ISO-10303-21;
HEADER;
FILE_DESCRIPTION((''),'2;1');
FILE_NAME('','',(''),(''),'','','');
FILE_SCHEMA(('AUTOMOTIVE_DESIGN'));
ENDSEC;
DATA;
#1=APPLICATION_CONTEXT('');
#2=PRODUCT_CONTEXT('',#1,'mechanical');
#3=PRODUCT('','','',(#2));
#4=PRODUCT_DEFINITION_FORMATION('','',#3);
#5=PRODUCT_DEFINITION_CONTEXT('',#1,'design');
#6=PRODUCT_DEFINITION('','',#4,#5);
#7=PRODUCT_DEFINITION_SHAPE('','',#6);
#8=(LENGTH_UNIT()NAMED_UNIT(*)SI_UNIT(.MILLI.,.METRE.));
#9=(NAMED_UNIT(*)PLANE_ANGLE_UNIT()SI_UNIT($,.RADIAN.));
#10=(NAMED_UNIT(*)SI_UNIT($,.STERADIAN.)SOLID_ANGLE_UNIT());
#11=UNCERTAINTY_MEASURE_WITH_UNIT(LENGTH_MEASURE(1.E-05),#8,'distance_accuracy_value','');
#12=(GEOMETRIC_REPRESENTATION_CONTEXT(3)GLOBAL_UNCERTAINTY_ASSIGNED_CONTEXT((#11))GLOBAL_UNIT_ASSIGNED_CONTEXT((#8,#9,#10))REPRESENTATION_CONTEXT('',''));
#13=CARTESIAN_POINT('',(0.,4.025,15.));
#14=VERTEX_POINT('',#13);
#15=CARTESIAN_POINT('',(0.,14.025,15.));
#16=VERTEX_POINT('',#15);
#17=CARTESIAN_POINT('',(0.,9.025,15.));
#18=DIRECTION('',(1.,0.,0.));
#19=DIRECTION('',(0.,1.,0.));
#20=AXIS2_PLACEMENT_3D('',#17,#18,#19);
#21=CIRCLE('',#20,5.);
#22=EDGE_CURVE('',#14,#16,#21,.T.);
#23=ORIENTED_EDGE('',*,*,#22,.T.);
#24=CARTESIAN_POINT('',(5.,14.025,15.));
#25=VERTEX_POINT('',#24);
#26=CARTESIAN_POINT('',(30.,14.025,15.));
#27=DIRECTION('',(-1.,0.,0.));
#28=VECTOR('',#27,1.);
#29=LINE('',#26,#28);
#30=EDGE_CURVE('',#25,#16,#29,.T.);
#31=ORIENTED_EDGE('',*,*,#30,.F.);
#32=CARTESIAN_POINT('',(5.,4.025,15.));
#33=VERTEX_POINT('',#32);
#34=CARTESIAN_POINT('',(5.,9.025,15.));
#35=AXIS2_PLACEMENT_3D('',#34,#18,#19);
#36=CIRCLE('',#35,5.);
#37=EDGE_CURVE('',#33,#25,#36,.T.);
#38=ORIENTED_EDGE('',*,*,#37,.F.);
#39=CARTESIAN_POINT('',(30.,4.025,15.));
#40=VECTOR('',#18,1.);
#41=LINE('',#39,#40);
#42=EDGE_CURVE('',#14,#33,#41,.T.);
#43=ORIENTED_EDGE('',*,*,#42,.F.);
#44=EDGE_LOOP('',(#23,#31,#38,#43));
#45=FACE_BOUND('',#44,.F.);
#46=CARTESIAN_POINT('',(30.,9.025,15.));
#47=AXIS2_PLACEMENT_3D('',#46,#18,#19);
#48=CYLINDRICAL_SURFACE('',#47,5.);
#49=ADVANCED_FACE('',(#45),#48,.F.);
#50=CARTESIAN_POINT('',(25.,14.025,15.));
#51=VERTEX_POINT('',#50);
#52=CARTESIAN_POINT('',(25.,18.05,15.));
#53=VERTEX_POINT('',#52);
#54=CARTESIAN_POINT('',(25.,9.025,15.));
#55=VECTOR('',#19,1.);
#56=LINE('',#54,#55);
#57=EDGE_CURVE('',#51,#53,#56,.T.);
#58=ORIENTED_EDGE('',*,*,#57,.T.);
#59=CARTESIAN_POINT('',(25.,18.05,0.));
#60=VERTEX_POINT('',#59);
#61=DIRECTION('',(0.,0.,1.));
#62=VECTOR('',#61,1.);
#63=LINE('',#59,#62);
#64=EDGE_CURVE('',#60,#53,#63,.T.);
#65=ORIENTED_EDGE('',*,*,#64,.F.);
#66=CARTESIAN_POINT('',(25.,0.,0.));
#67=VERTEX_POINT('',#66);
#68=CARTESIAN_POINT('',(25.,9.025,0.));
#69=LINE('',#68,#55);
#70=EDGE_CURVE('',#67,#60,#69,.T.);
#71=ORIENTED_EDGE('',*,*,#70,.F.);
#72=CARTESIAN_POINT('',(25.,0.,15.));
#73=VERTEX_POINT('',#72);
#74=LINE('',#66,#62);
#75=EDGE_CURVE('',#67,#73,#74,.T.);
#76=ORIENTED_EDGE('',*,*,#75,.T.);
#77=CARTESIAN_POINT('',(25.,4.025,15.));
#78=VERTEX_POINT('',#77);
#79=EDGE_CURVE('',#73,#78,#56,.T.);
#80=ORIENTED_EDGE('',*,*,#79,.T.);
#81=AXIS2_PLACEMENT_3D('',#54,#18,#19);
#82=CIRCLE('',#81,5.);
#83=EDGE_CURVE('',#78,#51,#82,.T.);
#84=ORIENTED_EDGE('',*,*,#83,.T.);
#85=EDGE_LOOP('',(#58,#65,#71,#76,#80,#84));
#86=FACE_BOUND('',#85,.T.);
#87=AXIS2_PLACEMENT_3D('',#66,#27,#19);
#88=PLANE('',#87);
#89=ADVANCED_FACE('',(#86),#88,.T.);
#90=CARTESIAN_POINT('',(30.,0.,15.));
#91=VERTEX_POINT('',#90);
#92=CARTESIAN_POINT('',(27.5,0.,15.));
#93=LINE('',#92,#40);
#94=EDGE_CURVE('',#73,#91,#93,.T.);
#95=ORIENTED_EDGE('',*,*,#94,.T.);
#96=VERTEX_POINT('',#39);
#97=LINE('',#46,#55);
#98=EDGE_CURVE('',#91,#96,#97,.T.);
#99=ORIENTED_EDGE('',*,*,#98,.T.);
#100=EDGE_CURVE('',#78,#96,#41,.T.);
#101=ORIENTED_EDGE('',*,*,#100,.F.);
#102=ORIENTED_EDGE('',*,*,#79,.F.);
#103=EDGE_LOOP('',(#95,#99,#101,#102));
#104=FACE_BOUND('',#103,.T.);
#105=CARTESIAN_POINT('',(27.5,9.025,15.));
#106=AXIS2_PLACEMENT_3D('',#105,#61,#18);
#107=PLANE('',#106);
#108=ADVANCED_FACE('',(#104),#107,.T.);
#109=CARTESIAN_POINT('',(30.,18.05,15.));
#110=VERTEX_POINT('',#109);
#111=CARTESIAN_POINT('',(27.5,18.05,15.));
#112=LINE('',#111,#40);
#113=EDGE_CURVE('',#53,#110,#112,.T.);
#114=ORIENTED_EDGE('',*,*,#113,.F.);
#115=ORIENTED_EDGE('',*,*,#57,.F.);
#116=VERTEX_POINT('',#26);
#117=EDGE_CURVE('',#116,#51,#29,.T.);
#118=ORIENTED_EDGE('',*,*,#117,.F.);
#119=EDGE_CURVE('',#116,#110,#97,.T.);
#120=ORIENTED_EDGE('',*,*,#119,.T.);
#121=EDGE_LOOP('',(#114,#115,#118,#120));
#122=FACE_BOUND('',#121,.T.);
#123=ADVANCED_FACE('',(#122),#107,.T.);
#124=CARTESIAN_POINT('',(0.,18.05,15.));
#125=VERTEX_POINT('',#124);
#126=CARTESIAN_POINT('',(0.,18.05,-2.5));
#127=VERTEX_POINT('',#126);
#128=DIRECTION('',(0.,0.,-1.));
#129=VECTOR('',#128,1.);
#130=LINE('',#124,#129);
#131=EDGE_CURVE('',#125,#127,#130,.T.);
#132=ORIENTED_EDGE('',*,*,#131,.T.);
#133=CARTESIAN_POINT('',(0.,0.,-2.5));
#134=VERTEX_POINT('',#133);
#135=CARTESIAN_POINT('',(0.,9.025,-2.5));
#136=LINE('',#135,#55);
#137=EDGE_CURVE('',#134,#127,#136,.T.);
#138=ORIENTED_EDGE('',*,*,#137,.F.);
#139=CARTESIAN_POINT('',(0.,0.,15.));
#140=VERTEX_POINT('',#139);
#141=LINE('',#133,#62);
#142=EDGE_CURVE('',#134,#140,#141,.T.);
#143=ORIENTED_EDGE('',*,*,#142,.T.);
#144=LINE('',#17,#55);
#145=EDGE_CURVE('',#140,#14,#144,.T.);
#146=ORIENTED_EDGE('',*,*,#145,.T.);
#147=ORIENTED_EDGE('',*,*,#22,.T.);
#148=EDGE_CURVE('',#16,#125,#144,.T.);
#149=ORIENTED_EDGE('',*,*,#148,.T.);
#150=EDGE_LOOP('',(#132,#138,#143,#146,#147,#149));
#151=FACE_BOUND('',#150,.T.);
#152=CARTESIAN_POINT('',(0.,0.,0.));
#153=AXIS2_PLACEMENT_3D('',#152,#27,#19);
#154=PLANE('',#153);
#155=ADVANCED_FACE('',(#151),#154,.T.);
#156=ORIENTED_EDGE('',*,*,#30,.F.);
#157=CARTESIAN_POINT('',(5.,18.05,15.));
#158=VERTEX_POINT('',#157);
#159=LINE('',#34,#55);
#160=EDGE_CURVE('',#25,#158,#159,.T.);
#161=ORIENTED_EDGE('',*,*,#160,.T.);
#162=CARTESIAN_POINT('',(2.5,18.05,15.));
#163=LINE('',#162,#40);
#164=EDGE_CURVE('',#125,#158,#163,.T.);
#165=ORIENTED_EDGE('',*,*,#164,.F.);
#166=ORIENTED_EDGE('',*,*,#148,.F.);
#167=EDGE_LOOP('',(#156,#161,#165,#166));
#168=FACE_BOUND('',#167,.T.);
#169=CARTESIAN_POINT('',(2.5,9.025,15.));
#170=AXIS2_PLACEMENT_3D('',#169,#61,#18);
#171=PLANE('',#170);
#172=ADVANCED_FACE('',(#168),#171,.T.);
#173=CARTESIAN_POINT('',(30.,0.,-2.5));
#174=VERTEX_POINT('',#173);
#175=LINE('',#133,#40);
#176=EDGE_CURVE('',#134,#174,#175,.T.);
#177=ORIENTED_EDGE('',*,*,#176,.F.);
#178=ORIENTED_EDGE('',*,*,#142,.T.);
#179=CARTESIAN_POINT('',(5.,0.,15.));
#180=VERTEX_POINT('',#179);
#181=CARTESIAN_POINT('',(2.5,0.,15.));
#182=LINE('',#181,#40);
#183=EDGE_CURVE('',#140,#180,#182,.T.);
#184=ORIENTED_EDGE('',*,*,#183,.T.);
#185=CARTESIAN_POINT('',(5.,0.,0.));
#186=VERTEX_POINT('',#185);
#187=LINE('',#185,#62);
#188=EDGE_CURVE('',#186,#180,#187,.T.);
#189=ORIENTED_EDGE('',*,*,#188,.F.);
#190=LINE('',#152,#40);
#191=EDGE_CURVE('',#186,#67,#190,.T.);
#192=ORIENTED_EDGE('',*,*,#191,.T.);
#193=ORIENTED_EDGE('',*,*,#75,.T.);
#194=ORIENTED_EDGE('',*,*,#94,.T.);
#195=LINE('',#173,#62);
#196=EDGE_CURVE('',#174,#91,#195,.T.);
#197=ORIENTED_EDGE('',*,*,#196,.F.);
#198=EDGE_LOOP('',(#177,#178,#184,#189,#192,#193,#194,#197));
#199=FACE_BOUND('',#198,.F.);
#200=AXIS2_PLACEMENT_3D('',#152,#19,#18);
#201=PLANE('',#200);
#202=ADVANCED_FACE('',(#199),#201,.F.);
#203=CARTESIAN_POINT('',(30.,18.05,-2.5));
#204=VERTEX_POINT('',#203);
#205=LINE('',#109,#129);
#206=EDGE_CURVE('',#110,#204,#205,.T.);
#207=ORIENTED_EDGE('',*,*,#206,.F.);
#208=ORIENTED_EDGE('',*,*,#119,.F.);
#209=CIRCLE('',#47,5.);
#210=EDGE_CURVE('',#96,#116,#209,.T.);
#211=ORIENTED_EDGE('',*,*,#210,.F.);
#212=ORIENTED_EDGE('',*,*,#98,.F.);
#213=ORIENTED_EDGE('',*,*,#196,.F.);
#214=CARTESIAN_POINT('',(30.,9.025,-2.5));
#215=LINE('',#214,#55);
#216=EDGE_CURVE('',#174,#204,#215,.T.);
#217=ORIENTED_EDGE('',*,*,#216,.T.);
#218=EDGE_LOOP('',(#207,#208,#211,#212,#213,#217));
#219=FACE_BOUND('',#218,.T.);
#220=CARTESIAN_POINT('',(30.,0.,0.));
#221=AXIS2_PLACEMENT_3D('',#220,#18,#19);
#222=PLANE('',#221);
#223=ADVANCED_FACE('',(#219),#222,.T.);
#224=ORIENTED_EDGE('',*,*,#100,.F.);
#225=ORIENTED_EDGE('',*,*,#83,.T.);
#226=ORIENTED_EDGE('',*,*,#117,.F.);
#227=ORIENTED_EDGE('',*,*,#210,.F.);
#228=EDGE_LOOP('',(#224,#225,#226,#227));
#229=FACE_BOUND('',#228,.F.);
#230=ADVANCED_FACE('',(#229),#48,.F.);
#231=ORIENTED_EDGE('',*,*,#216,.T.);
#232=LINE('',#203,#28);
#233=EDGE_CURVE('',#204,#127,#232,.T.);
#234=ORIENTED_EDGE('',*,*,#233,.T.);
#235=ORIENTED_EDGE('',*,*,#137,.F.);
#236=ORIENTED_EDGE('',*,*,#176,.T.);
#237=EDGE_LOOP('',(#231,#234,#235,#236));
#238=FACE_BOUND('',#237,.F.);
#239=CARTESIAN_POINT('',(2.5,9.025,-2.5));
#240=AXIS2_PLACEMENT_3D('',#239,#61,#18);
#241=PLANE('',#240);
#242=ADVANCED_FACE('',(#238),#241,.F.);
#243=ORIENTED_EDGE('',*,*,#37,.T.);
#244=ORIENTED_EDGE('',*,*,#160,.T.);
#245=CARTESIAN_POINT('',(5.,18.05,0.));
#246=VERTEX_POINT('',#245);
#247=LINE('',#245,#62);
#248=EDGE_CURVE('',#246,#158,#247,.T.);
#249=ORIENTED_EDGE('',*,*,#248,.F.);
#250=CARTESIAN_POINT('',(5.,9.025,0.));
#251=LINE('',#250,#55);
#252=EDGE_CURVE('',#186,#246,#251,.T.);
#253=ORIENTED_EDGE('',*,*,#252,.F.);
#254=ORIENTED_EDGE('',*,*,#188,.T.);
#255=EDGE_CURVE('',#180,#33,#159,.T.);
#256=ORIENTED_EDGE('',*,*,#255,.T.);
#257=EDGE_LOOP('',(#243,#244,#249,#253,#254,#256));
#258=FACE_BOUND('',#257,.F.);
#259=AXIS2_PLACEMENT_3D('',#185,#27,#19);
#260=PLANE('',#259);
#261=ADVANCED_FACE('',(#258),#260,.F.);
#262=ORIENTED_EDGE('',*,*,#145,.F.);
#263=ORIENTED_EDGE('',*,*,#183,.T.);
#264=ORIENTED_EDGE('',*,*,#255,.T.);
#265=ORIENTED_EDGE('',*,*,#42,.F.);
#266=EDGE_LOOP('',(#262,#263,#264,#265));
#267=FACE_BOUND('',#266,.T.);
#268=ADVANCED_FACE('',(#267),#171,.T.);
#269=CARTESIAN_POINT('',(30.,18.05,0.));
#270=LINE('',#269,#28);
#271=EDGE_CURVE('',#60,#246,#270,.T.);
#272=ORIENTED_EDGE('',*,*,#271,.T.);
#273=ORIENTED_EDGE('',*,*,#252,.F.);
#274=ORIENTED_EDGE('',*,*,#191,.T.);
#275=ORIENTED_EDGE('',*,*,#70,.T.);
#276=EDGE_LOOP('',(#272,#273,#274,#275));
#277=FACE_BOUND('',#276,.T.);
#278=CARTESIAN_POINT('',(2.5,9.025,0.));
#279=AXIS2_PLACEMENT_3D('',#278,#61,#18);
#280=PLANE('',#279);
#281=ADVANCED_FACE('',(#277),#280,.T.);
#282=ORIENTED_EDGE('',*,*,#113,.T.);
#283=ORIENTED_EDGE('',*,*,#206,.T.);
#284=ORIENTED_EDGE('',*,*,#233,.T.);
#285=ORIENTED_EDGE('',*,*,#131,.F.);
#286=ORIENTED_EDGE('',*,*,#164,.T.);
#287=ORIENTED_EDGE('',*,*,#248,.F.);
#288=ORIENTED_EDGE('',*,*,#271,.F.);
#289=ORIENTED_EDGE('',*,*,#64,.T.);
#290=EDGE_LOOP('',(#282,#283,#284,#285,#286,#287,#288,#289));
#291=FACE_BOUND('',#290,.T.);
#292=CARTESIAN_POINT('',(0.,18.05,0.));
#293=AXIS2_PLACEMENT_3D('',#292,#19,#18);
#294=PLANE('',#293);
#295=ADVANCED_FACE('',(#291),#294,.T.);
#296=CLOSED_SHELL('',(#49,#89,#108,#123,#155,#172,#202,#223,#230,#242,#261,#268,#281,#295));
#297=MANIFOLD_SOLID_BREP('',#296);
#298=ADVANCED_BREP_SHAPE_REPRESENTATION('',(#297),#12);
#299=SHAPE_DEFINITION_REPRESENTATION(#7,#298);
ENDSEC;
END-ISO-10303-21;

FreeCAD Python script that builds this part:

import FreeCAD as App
import Part
import Sketcher

V = App.Vector

doc = App.newDocument("Part")
body = doc.addObject("PartDesign::Body", "Body")

# Sketch on XY plane
sketch1 = doc.addObject("Sketcher::SketchObject", "Sketch")
body.addObject(sketch1)
sketch1.AttachmentSupport = (doc.XY_Plane, [""])
sketch1.MapMode = "FlatFace"
sketch1.addGeometry([
    Part.LineSegment(V(0, 18.05, 0), V(0, 0, 0)),
    Part.LineSegment(V(0, 0, 0), V(30, 0, 0)),
    Part.LineSegment(V(30, 0, 0), V(30, 18.05, 0)),
    Part.LineSegment(V(30, 18.05, 0), V(0, 18.05, 0)),
], False)
sketch1.addConstraint([
    Sketcher.Constraint("Coincident", 0, 2, 1, 1),
    Sketcher.Constraint("Coincident", 1, 2, 2, 1),
    Sketcher.Constraint("Coincident", 2, 2, 3, 1),
    Sketcher.Constraint("Coincident", 3, 2, 0, 1),
    Sketcher.Constraint("Vertical", 0),
    Sketcher.Constraint("Horizontal", 1),
    Sketcher.Constraint("Vertical", 2),
    Sketcher.Constraint("Horizontal", 3),
    Sketcher.Constraint("Coincident", 0, 2, -1, 1),
    Sketcher.Constraint("DistanceX", 1, 1, 1, 2, 30.0),
    Sketcher.Constraint("DistanceY", 0, 2, 0, 1, 18.05),
])
pad1 = doc.addObject("PartDesign::Pad", "Pad")
body.addObject(pad1)
pad1.Profile = sketch1
pad1.Length = 2.5
pad1.Reversed = True

# Sketch on XY plane
sketch2 = doc.addObject("Sketcher::SketchObject", "Sketch001")
body.addObject(sketch2)
sketch2.AttachmentSupport = (doc.XY_Plane, [""])
sketch2.MapMode = "FlatFace"
sketch2.addGeometry([
    Part.LineSegment(V(0, 18.05, 0), V(0, 0, 0)),  # 0
    Part.LineSegment(V(0, 0, 0), V(5, 0, 0)),  # 1
    Part.LineSegment(V(5, 0, 0), V(5, 18.05, 0)),  # 2
    Part.LineSegment(V(5, 18.05, 0), V(0, 18.05, 0)),  # 3
    Part.LineSegment(V(25, 18.05, 0), V(25, 0, 0)),  # 4
    Part.LineSegment(V(25, 0, 0), V(30, 0, 0)),  # 5
    Part.LineSegment(V(30, 0, 0), V(30, 18.05, 0)),  # 6
    Part.LineSegment(V(30, 18.05, 0), V(25, 18.05, 0)),  # 7
], False)
sketch2.addConstraint([
    Sketcher.Constraint("Coincident", 0, 2, 1, 1),
    Sketcher.Constraint("Coincident", 1, 2, 2, 1),
    Sketcher.Constraint("Coincident", 2, 2, 3, 1),
    Sketcher.Constraint("Coincident", 3, 2, 0, 1),
    Sketcher.Constraint("Coincident", 4, 2, 5, 1),
    Sketcher.Constraint("Coincident", 5, 2, 6, 1),
    Sketcher.Constraint("Coincident", 6, 2, 7, 1),
    Sketcher.Constraint("Coincident", 7, 2, 4, 1),
    Sketcher.Constraint("Vertical", 0),
    Sketcher.Constraint("Horizontal", 1),
    Sketcher.Constraint("Vertical", 2),
    Sketcher.Constraint("Horizontal", 3),
    Sketcher.Constraint("Vertical", 4),
    Sketcher.Constraint("Horizontal", 5),
    Sketcher.Constraint("Vertical", 6),
    Sketcher.Constraint("Horizontal", 7),
    Sketcher.Constraint("Coincident", 0, 2, -1, 1),
    Sketcher.Constraint("PointOnObject", 4, 2, -1),
    Sketcher.Constraint("Horizontal", 3, 2, 6, 2),
    Sketcher.Constraint("Equal", 3, 5),
    Sketcher.Constraint("DistanceX", 1, 1, 1, 2, 5.0),
    Sketcher.Constraint("DistanceX", -1, 1, 4, 2, 25.0),
    Sketcher.Constraint("DistanceY", 0, 2, 0, 1, 18.05),
])
pad2 = doc.addObject("PartDesign::Pad", "Pad001")
body.addObject(pad2)
pad2.Profile = sketch2
pad2.Length = 15

# Sketch on YZ plane
sketch3 = doc.addObject("Sketcher::SketchObject", "Sketch002")
body.addObject(sketch3)
sketch3.AttachmentSupport = (doc.YZ_Plane, [""])
sketch3.MapMode = "FlatFace"
sketch3.AttachmentOffset = App.Placement(V(0, 0, 30), App.Rotation())
sketch3.addGeometry(Part.Circle(V(9.025, 15, 0), V(0, 0, 1), 5), False)
sketch3.addConstraint([
    Sketcher.Constraint("Diameter", 0, 10.0),
    Sketcher.Constraint("DistanceY", -1, 1, 0, 3, 15.0),
    Sketcher.Constraint("DistanceX", -1, 1, 0, 3, 9.025),
])
pocket1 = doc.addObject("PartDesign::Pocket", "Pocket")
body.addObject(pocket1)
pocket1.Profile = sketch3
pocket1.Type = "ThroughAll"

doc.recompute()
